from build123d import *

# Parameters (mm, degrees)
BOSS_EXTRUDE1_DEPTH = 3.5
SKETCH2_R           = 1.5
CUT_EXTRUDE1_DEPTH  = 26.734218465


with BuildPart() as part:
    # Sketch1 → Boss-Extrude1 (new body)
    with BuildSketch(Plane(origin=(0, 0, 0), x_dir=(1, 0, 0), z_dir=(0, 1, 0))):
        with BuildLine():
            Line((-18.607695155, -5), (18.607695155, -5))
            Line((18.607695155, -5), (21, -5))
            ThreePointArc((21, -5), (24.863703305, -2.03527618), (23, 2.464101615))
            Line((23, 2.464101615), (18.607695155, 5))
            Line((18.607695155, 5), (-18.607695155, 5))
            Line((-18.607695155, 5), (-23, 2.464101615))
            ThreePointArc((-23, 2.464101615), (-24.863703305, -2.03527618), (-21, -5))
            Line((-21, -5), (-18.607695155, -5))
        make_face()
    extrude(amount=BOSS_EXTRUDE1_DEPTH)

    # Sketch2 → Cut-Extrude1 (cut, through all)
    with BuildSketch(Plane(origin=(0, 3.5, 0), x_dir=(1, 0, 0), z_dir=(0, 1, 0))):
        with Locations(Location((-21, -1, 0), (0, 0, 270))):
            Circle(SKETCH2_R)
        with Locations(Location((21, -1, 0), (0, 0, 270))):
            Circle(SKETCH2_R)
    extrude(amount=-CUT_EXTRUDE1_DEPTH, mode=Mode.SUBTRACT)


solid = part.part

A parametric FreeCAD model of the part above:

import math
import FreeCAD as App
import Part
import Sketcher
Q = App.Units.Quantity

doc = App.newDocument("Part")
body = doc.addObject("PartDesign::Body", "Body")

# Sketch on XZ plane
sketch1 = body.newObject("Sketcher::SketchObject", "Sketch")
sketch1.AttachmentSupport = (doc.getObject("XZ_Plane"), [""])
sketch1.MapMode = "FlatFace"
sketch1.addGeometry([
    Part.ArcOfCircle(Part.Circle(App.Vector(21, 1, 0), App.Vector(0, 0, 1), 4), math.radians(-60), math.radians(90)),  # 0
    Part.LineSegment(App.Vector(23, -2.5, 0), App.Vector(18.6, -5, 0)),  # 1
    Part.LineSegment(App.Vector(18.6, -5, 0), App.Vector(-18.6, -5, 0)),  # 2
    Part.LineSegment(App.Vector(-18.6, -5, 0), App.Vector(-23, -2.5, 0)),  # 3
    Part.ArcOfCircle(Part.Circle(App.Vector(-21, 1, 0), App.Vector(0, 0, 1), 4), math.radians(90), math.radians(240)),  # 4
    Part.LineSegment(App.Vector(-21, 5, 0), App.Vector(21, 5, 0)),  # 5
], False)
sketch1.addConstraint([
    Sketcher.Constraint("Tangent", 0, 1, 1, 1),
    Sketcher.Constraint("Coincident", 1, 2, 2, 1),
    Sketcher.Constraint("Coincident", 2, 2, 3, 1),
    Sketcher.Constraint("Tangent", 3, 2, 4, 2),
    Sketcher.Constraint("Tangent", 4, 1, 5, 1),
    Sketcher.Constraint("Tangent", 5, 2, 0, 2),
    Sketcher.Constraint("Horizontal", 2),
    Sketcher.Constraint("Horizontal", 5),
    Sketcher.Constraint("Equal", 0, 4),
    Sketcher.Constraint("Symmetric", 0, 1, 3, 2, -2),
    Sketcher.Constraint("Radius", 0, 4.0),
    Sketcher.Constraint("DistanceX", 5, 1, 5, 2, 42.0),
    Sketcher.Constraint("Angle", 1, Q("-150 deg")),
    Sketcher.Constraint("DistanceY", -1, 1, 0, 3, 1.0),
    Sketcher.Constraint("DistanceY", 1, 2, -1, 1, 5.0),
])
pad1 = body.newObject("PartDesign::Pad", "Pad")
pad1.Profile = sketch1
pad1.Length = 3.5
pad1.Reversed = True

# Sketch on XZ plane
sketch2 = body.newObject("Sketcher::SketchObject", "Sketch001")
sketch2.AttachmentSupport = (doc.getObject("XZ_Plane"), [""])
sketch2.MapMode = "FlatFace"
sketch2.AttachmentOffset = App.Placement(App.Vector(0, 0, -3.5), App.Rotation())
sketch2.addGeometry([
    Part.Circle(App.Vector(-21, 1, 0), App.Vector(0, 0, 1), 1.5),
    Part.Circle(App.Vector(21, 1, 0), App.Vector(0, 0, 1), 1.5),
], False)
sketch2.addConstraint([
    Sketcher.Constraint("Equal", 0, 1),
    Sketcher.Constraint("Symmetric", 0, 3, 1, 3, -2),
    Sketcher.Constraint("Diameter", 0, 3.0),
    Sketcher.Constraint("DistanceX", 0, 3, -1, 1, 21.0),
    Sketcher.Constraint("DistanceY", -1, 1, 0, 3, 1.0),
])
pocket1 = body.newObject("PartDesign::Pocket", "Pocket")
pocket1.Profile = sketch2
pocket1.Type = "ThroughAll"
pocket1.Reversed = True

doc.recompute()
